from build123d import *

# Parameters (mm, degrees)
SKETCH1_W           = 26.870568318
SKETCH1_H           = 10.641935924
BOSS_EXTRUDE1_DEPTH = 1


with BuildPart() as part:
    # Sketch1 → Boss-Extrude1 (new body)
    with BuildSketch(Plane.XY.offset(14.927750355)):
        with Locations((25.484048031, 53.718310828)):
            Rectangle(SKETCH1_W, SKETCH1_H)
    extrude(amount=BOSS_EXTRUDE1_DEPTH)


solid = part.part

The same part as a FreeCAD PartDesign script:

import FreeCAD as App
import Part
import Sketcher
from FreeCAD import Vector
Q = App.Units.Quantity

doc = App.newDocument("Part")
body = doc.addObject("PartDesign::Body", "Body")

sketch1 = body.newObject("Sketcher::SketchObject", "Sketch")
sketch1.AttachmentSupport = (doc.getObject("XY_Plane"), [""])
sketch1.MapMode = "FlatFace"
sketch1.AttachmentOffset = App.Placement(Vector(0, 0, 14.92775), App.Rotation())
sketch1.addGeometry(Part.LineSegment(Vector(12, 59, 0), Vector(12, 48, 0)), False)
sketch1.addGeometry(Part.LineSegment(Vector(12, 48, 0), Vector(39, 48, 0)), False)
sketch1.addGeometry(Part.LineSegment(Vector(39, 48, 0), Vector(39, 59, 0)), False)
sketch1.addGeometry(Part.LineSegment(Vector(39, 59, 0), Vector(12, 59, 0)), False)
sketch1.addConstraint(Sketcher.Constraint("Coincident", 0, 2, 1, 1))
sketch1.addConstraint(Sketcher.Constraint("Coincident", 1, 2, 2, 1))
sketch1.addConstraint(Sketcher.Constraint("Coincident", 2, 2, 3, 1))
sketch1.addConstraint(Sketcher.Constraint("Coincident", 3, 2, 0, 1))
sketch1.addConstraint(Sketcher.Constraint("Vertical", 0))
sketch1.addConstraint(Sketcher.Constraint("Horizontal", 1))
sketch1.addConstraint(Sketcher.Constraint("Vertical", 2))
sketch1.addConstraint(Sketcher.Constraint("Horizontal", 3))
sketch1.addConstraint(Sketcher.Constraint("DistanceX", 1, 1, 1, 2, Q("26.870568 mm")))
sketch1.addConstraint(Sketcher.Constraint("DistanceY", 0, 2, 0, 1, Q("10.641936 mm")))
sketch1.addConstraint(Sketcher.Constraint("DistanceY", -1, 1, 2, 2, Q("59.039279 mm")))
sketch1.addConstraint(Sketcher.Constraint("DistanceX", -1, 1, 0, 2, Q("12.048764 mm")))
pad1 = body.newObject("PartDesign::Pad", "Pad")
pad1.Profile = sketch1
pad1.Length = 1

doc.recompute()
